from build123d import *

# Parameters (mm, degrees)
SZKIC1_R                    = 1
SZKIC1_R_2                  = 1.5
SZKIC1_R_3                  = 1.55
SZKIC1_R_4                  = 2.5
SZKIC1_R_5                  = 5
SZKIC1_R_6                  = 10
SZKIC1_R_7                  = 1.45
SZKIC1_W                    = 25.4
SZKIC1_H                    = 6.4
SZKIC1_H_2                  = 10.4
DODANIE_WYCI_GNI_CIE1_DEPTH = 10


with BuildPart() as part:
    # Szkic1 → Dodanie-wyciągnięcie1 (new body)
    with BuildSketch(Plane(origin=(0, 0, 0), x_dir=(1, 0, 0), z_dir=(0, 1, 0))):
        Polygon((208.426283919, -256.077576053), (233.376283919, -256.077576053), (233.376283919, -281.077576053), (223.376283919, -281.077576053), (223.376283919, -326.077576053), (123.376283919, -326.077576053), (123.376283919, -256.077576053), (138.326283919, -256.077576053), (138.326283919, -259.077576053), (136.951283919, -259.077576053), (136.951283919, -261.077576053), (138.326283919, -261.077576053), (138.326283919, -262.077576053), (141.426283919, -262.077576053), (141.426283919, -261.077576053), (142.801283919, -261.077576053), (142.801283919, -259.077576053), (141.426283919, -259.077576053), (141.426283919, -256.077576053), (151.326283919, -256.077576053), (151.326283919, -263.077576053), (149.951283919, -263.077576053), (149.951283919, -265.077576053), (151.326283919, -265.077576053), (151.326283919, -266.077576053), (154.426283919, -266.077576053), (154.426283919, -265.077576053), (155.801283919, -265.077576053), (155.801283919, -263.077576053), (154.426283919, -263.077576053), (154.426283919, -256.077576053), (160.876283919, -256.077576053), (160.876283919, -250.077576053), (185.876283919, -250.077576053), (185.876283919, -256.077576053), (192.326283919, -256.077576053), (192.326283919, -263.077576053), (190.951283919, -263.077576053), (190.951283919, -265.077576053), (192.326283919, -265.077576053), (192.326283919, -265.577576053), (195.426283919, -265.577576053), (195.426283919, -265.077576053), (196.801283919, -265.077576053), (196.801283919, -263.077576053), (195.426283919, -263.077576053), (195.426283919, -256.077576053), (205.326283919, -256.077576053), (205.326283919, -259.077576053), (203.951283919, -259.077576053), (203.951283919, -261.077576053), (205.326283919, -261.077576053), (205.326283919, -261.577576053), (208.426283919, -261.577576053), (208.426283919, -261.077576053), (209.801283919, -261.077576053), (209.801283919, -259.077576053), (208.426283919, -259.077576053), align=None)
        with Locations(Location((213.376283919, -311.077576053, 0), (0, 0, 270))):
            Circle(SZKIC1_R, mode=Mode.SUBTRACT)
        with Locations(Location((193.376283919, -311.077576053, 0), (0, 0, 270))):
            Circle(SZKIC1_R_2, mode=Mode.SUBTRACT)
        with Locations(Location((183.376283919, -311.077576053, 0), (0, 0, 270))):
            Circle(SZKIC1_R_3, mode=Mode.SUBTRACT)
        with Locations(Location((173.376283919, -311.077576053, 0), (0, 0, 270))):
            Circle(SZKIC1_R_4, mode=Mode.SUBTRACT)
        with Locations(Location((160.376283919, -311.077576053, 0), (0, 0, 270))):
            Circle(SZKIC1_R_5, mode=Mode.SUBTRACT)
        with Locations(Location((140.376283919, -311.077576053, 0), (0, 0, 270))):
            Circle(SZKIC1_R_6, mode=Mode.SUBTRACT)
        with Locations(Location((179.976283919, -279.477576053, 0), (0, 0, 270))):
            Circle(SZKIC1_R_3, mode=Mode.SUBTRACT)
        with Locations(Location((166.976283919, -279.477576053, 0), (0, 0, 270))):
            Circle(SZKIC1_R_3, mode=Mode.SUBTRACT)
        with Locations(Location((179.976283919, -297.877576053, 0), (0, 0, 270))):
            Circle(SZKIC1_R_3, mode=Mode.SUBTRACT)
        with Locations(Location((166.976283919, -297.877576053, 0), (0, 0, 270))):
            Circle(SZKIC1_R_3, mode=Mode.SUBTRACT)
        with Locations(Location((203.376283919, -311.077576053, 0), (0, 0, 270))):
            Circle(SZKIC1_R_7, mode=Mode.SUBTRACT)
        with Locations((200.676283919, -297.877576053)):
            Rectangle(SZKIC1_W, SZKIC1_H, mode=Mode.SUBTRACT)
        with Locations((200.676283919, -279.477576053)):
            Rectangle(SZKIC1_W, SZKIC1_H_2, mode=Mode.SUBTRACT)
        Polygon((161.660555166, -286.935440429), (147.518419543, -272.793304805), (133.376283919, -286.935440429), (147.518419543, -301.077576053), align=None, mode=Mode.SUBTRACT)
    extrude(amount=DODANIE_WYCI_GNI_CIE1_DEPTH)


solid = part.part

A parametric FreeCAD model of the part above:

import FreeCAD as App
import Part
import Sketcher
Q = App.Units.Quantity


def add_polygon(sketch, points):
    """Adds a closed chain of lines whose ends are joined by coincident constraints."""
    first, n = sketch.GeometryCount, len(points)
    for a, b in zip(points, points[1:] + points[:1]):
        sketch.addGeometry(Part.LineSegment(App.Vector(*a, 0), App.Vector(*b, 0)), False)
    for i in range(n):
        sketch.addConstraint(Sketcher.Constraint("Coincident", first + i, 2, first + (i + 1) % n, 1))

doc = App.newDocument("Part")
params = doc.addObject("Spreadsheet::Sheet", "Params")
for row, (alias, value) in enumerate([
    ("sketch1_diameter", "2 mm"),
    ("sketch1_diameter2", "3 mm"),
    ("sketch1_diameter3", "5 mm"),
    ("sketch1_diameter4", "10 mm"),
    ("sketch1_diameter5", "20 mm"),
    ("pad1_length", "10 mm"),
], start=1):
    params.set(f"A{row}", alias)
    params.set(f"B{row}", "=" + value)
    params.setAlias(f"B{row}", alias)

body = doc.addObject("PartDesign::Body", "Body")

# Sketch on XZ plane
sketch1 = body.newObject("Sketcher::SketchObject", "Sketch")
sketch1.AttachmentSupport = (doc.getObject("XZ_Plane"), [""])
sketch1.MapMode = "FlatFace"
add_polygon(sketch1, [(233.4, 256.1), (208.4, 256.1), (208.4, 259.1), (209.8, 259.1), (209.8, 261.1), (208.4, 261.1), (208.4, 261.6), (205.3, 261.6), (205.3, 261.1), (204, 261.1), (204, 259.1), (205.3, 259.1), (205.3, 256.1), (195.4, 256.1), (195.4, 263.1), (196.8, 263.1), (196.8, 265.1), (195.4, 265.1), (195.4, 265.6), (192.3, 265.6), (192.3, 265.1), (191, 265.1), (191, 263.1), (192.3, 263.1), (192.3, 256.1), (185.9, 256.1), (185.9, 250.1), (160.9, 250.1), (160.9, 256.1), (154.4, 256.1), (154.4, 263.1), (155.8, 263.1), (155.8, 265.1), (154.4, 265.1), (154.4, 266.1), (151.3, 266.1), (151.3, 265.1), (150, 265.1), (150, 263.1), (151.3, 263.1), (151.3, 256.1), (141.4, 256.1), (141.4, 259.1), (142.8, 259.1), (142.8, 261.1), (141.4, 261.1), (141.4, 262.1), (138.3, 262.1), (138.3, 261.1), (137, 261.1), (137, 259.1), (138.3, 259.1), (138.3, 256.1), (123.4, 256.1), (123.4, 326.1), (223.4, 326.1), (223.4, 281.1), (233.4, 281.1)])  # lines 0-57
sketch1.addGeometry(Part.Circle(App.Vector(213.4, 311.1, 0), App.Vector(0, 0, 1), 1), False)  # 58
sketch1.addGeometry(Part.Circle(App.Vector(203.4, 311.1, 0), App.Vector(0, 0, 1), 1.4), False)  # 59
sketch1.addGeometry(Part.Circle(App.Vector(193.4, 311.1, 0), App.Vector(0, 0, 1), 1.5), False)  # 60
sketch1.addGeometry(Part.Circle(App.Vector(183.4, 311.1, 0), App.Vector(0, 0, 1), 1.6), False)  # 61
sketch1.addGeometry(Part.Circle(App.Vector(173.4, 311.1, 0), App.Vector(0, 0, 1), 2.5), False)  # 62
add_polygon(sketch1, [(188, 301.1), (188, 294.7), (213.4, 294.7), (213.4, 301.1)])  # lines 63-66
sketch1.addGeometry(Part.Circle(App.Vector(180, 297.9, 0), App.Vector(0, 0, 1), 1.6), False)  # 67
sketch1.addGeometry(Part.Circle(App.Vector(160.4, 311.1, 0), App.Vector(0, 0, 1), 5), False)  # 68
sketch1.addGeometry(Part.Circle(App.Vector(140.4, 311.1, 0), App.Vector(0, 0, 1), 10), False)  # 69
sketch1.addGeometry(Part.Circle(App.Vector(167, 297.9, 0), App.Vector(0, 0, 1), 1.6), False)  # 70
add_polygon(sketch1, [(188, 284.7), (188, 274.3), (213.4, 274.3), (213.4, 284.7)])  # lines 71-74
sketch1.addGeometry(Part.Circle(App.Vector(180, 279.5, 0), App.Vector(0, 0, 1), 1.6), False)  # 75
add_polygon(sketch1, [(161.7, 286.9), (147.5, 301.1), (133.4, 286.9), (147.5, 272.8)])  # lines 76-79
sketch1.addGeometry(Part.Circle(App.Vector(167, 279.5, 0), App.Vector(0, 0, 1), 1.6), False)  # 80
sketch1.addConstraint(Sketcher.Constraint("Horizontal", 0))
sketch1.addConstraint(Sketcher.Constraint("Vertical", 1))
sketch1.addConstraint(Sketcher.Constraint("Horizontal", 2))
sketch1.addConstraint(Sketcher.Constraint("Vertical", 3))
sketch1.addConstraint(Sketcher.Constraint("Horizontal", 4))
sketch1.addConstraint(Sketcher.Constraint("Vertical", 5))
sketch1.addConstraint(Sketcher.Constraint("Horizontal", 6))
sketch1.addConstraint(Sketcher.Constraint("Vertical", 7))
sketch1.addConstraint(Sketcher.Constraint("Horizontal", 8))
sketch1.addConstraint(Sketcher.Constraint("Vertical", 9))
sketch1.addConstraint(Sketcher.Constraint("Horizontal", 10))
sketch1.addConstraint(Sketcher.Constraint("Vertical", 11))
sketch1.addConstraint(Sketcher.Constraint("Horizontal", 12))
sketch1.addConstraint(Sketcher.Constraint("Vertical", 13))
sketch1.addConstraint(Sketcher.Constraint("Horizontal", 14))
sketch1.addConstraint(Sketcher.Constraint("Vertical", 15))
sketch1.addConstraint(Sketcher.Constraint("Horizontal", 16))
sketch1.addConstraint(Sketcher.Constraint("Vertical", 17))
sketch1.addConstraint(Sketcher.Constraint("Horizontal", 18))
sketch1.addConstraint(Sketcher.Constraint("Vertical", 19))
sketch1.addConstraint(Sketcher.Constraint("Horizontal", 20))
sketch1.addConstraint(Sketcher.Constraint("Vertical", 21))
sketch1.addConstraint(Sketcher.Constraint("Horizontal", 22))
sketch1.addConstraint(Sketcher.Constraint("Vertical", 23))
sketch1.addConstraint(Sketcher.Constraint("Horizontal", 24))
sketch1.addConstraint(Sketcher.Constraint("Vertical", 25))
sketch1.addConstraint(Sketcher.Constraint("Horizontal", 26))
sketch1.addConstraint(Sketcher.Constraint("Vertical", 27))
sketch1.addConstraint(Sketcher.Constraint("Horizontal", 28))
sketch1.addConstraint(Sketcher.Constraint("Vertical", 29))
sketch1.addConstraint(Sketcher.Constraint("Horizontal", 30))
sketch1.addConstraint(Sketcher.Constraint("Vertical", 31))
sketch1.addConstraint(Sketcher.Constraint("Horizontal", 32))
sketch1.addConstraint(Sketcher.Constraint("Vertical", 33))
sketch1.addConstraint(Sketcher.Constraint("Horizontal", 34))
sketch1.addConstraint(Sketcher.Constraint("Vertical", 35))
sketch1.addConstraint(Sketcher.Constraint("Horizontal", 36))
sketch1.addConstraint(Sketcher.Constraint("Vertical", 37))
sketch1.addConstraint(Sketcher.Constraint("Horizontal", 38))
sketch1.addConstraint(Sketcher.Constraint("Vertical", 39))
sketch1.addConstraint(Sketcher.Constraint("Horizontal", 40))
sketch1.addConstraint(Sketcher.Constraint("Vertical", 41))
sketch1.addConstraint(Sketcher.Constraint("Horizontal", 42))
sketch1.addConstraint(Sketcher.Constraint("Vertical", 43))
sketch1.addConstraint(Sketcher.Constraint("Horizontal", 44))
sketch1.addConstraint(Sketcher.Constraint("Vertical", 45))
sketch1.addConstraint(Sketcher.Constraint("Horizontal", 46))
sketch1.addConstraint(Sketcher.Constraint("Vertical", 47))
sketch1.addConstraint(Sketcher.Constraint("Horizontal", 48))
sketch1.addConstraint(Sketcher.Constraint("Vertical", 49))
sketch1.addConstraint(Sketcher.Constraint("Horizontal", 50))
sketch1.addConstraint(Sketcher.Constraint("Vertical", 51))
sketch1.addConstraint(Sketcher.Constraint("Horizontal", 52))
sketch1.addConstraint(Sketcher.Constraint("Vertical", 53))
sketch1.addConstraint(Sketcher.Constraint("Horizontal", 54))
sketch1.addConstraint(Sketcher.Constraint("Vertical", 55))
sketch1.addConstraint(Sketcher.Constraint("Horizontal", 56))
sketch1.addConstraint(Sketcher.Constraint("Vertical", 57))
sketch1.addConstraint(Sketcher.Constraint("Vertical", 63))
sketch1.addConstraint(Sketcher.Constraint("Horizontal", 64))
sketch1.addConstraint(Sketcher.Constraint("Vertical", 65))
sketch1.addConstraint(Sketcher.Constraint("Horizontal", 66))
sketch1.addConstraint(Sketcher.Constraint("Vertical", 71))
sketch1.addConstraint(Sketcher.Constraint("Horizontal", 72))
sketch1.addConstraint(Sketcher.Constraint("Vertical", 73))
sketch1.addConstraint(Sketcher.Constraint("Horizontal", 74))
sketch1.addConstraint(Sketcher.Constraint("Equal", 61, 67))
sketch1.addConstraint(Sketcher.Constraint("Equal", 67, 70))
sketch1.addConstraint(Sketcher.Constraint("Equal", 70, 75))
sketch1.addConstraint(Sketcher.Constraint("Equal", 75, 80))
sketch1.addConstraint(Sketcher.Constraint("Perpendicular", 76, 77))
sketch1.addConstraint(Sketcher.Constraint("Perpendicular", 77, 78))
sketch1.addConstraint(Sketcher.Constraint("Perpendicular", 78, 79))
sketch1.addConstraint(Sketcher.Constraint("Horizontal", 58, 3, 59, 3))
sketch1.addConstraint(Sketcher.Constraint("Horizontal", 59, 3, 60, 3))
sketch1.addConstraint(Sketcher.Constraint("Horizontal", 60, 3, 61, 3))
sketch1.addConstraint(Sketcher.Constraint("Horizontal", 61, 3, 62, 3))
sketch1.addConstraint(Sketcher.Constraint("Horizontal", 62, 3, 68, 3))
sketch1.addConstraint(Sketcher.Constraint("Horizontal", 68, 3, 69, 3))
sketch1.addConstraint(Sketcher.Constraint("Horizontal", 67, 3, 70, 3))
sketch1.addConstraint(Sketcher.Constraint("Horizontal", 75, 3, 80, 3))
sketch1.addConstraint(Sketcher.Constraint("Horizontal", 4, 2, 7, 2))
sketch1.addConstraint(Sketcher.Constraint("Horizontal", 2, 2, 9, 2))
sketch1.addConstraint(Sketcher.Constraint("Horizontal", 0, 2, 11, 2))
sketch1.addConstraint(Sketcher.Constraint("Horizontal", 16, 2, 19, 2))
sketch1.addConstraint(Sketcher.Constraint("Horizontal", 14, 2, 21, 2))
sketch1.addConstraint(Sketcher.Constraint("Horizontal", 12, 2, 23, 2))
sketch1.addConstraint(Sketcher.Constraint("Horizontal", 24, 2, 27, 2))
sketch1.addConstraint(Sketcher.Constraint("Horizontal", 22, 2, 29, 2))
sketch1.addConstraint(Sketcher.Constraint("Horizontal", 20, 2, 31, 2))
sketch1.addConstraint(Sketcher.Constraint("Horizontal", 32, 2, 35, 2))
sketch1.addConstraint(Sketcher.Constraint("Horizontal", 30, 2, 37, 2))
sketch1.addConstraint(Sketcher.Constraint("Horizontal", 28, 2, 39, 2))
sketch1.addConstraint(Sketcher.Constraint("Horizontal", 10, 2, 41, 2))
sketch1.addConstraint(Sketcher.Constraint("Horizontal", 8, 2, 43, 2))
sketch1.addConstraint(Sketcher.Constraint("Horizontal", 44, 2, 47, 2))
sketch1.addConstraint(Sketcher.Constraint("Horizontal", 42, 2, 49, 2))
sketch1.addConstraint(Sketcher.Constraint("Horizontal", 40, 2, 51, 2))
sketch1.addConstraint(Sketcher.Constraint("Horizontal", 66, 2, 76, 2))
sketch1.addConstraint(Sketcher.Constraint("Horizontal", 77, 2, 79, 2))
sketch1.addConstraint(Sketcher.Constraint("Vertical", 67, 3, 75, 3))
sketch1.addConstraint(Sketcher.Constraint("Vertical", 70, 3, 80, 3))
sketch1.addConstraint(Sketcher.Constraint("Vertical", 1, 2, 4, 2))
sketch1.addConstraint(Sketcher.Constraint("Vertical", 7, 2, 10, 2))
sketch1.addConstraint(Sketcher.Constraint("Vertical", 13, 2, 16, 2))
sketch1.addConstraint(Sketcher.Constraint("Vertical", 19, 2, 22, 2))
sketch1.addConstraint(Sketcher.Constraint("Vertical", 29, 2, 32, 2))
sketch1.addConstraint(Sketcher.Constraint("Vertical", 35, 2, 38, 2))
sketch1.addConstraint(Sketcher.Constraint("Vertical", 41, 2, 44, 2))
sketch1.addConstraint(Sketcher.Constraint("Vertical", 47, 2, 50, 2))
sketch1.addConstraint(Sketcher.Constraint("Vertical", 58, 3, 64, 2))
sketch1.addConstraint(Sketcher.Constraint("Vertical", 66, 2, 71, 2))
sketch1.addConstraint(Sketcher.Constraint("Vertical", 65, 2, 72, 2))
sketch1.addConstraint(Sketcher.Constraint("Vertical", 76, 2, 78, 2))
sketch1.addConstraint(Sketcher.Constraint("Equal", 4, 8))
sketch1.addConstraint(Sketcher.Constraint("Equal", 10, 14))
sketch1.addConstraint(Sketcher.Constraint("Equal", 6, 18))
sketch1.addConstraint(Sketcher.Constraint("Equal", 16, 20))
sketch1.addConstraint(Sketcher.Constraint("Equal", 24, 28))
sketch1.addConstraint(Sketcher.Constraint("Equal", 22, 30))
sketch1.addConstraint(Sketcher.Constraint("Equal", 18, 34))
sketch1.addConstraint(Sketcher.Constraint("Equal", 32, 36))
sketch1.addConstraint(Sketcher.Constraint("Equal", 12, 40))
sketch1.addConstraint(Sketcher.Constraint("Equal", 38, 42))
sketch1.addConstraint(Sketcher.Constraint("Equal", 34, 46))
sketch1.addConstraint(Sketcher.Constraint("Equal", 44, 48))
sketch1.addConstraint(Sketcher.Constraint("Equal", 9, 15))
sketch1.addConstraint(Sketcher.Constraint("Equal", 7, 17))
sketch1.addConstraint(Sketcher.Constraint("Equal", 35, 45))
sketch1.addConstraint(Sketcher.Constraint("Equal", 26, 57))
sketch1.addConstraint(Sketcher.Constraint("Diameter", 58, Q("2 mm")))
sketch1.addConstraint(Sketcher.Constraint("Diameter", 60, Q("3 mm")))
sketch1.addConstraint(Sketcher.Constraint("Diameter", 62, Q("5 mm")))
sketch1.addConstraint(Sketcher.Constraint("Diameter", 68, Q("10 mm")))
sketch1.addConstraint(Sketcher.Constraint("Diameter", 69, Q("20 mm")))
sketch1.addConstraint(Sketcher.Constraint("Diameter", 59, Q("2.9 mm")))
sketch1.addConstraint(Sketcher.Constraint("Diameter", 61, Q("3.1 mm")))
sketch1.addConstraint(Sketcher.Constraint("DistanceX", 26, 2, 26, 1, Q("25 mm")))
sketch1.addConstraint(Sketcher.Constraint("DistanceX", 54, 1, 54, 2, Q("100 mm")))
sketch1.addConstraint(Sketcher.Constraint("DistanceX", 56, 1, 56, 2, Q("10 mm")))
sketch1.addConstraint(Sketcher.Constraint("DistanceY", 1, 1, 1, 2, Q("3 mm")))
sketch1.addConstraint(Sketcher.Constraint("DistanceY", 3, 1, 3, 2, Q("2 mm")))
sketch1.addConstraint(Sketcher.Constraint("DistanceY", 13, 1, 13, 2, Q("7 mm")))
sketch1.addConstraint(Sketcher.Constraint("DistanceY", 25, 2, 25, 1, Q("6 mm")))
sketch1.addConstraint(Sketcher.Constraint("DistanceY", 33, 1, 33, 2, Q("1 mm")))
sketch1.addConstraint(Sketcher.Constraint("DistanceY", 53, 1, 53, 2, Q("70 mm")))
sketch1.addConstraint(Sketcher.Constraint("Distance", 76, Q("20 mm")))
sketch1.addConstraint(Sketcher.Constraint("DistanceX", 6, 2, 6, 1, Q("3.1 mm")))
sketch1.addConstraint(Sketcher.Constraint("DistanceX", 12, 2, 12, 1, Q("9.9 mm")))
sketch1.addConstraint(Sketcher.Constraint("DistanceX", 64, 1, 64, 2, Q("25.4 mm")))
sketch1.addConstraint(Sketcher.Constraint("DistanceY", 5, 1, 5, 2, Q("0.5 mm")))
sketch1.addConstraint(Sketcher.Constraint("DistanceY", 63, 2, 63, 1, Q("6.4 mm")))
sketch1.addConstraint(Sketcher.Constraint("DistanceY", 71, 2, 71, 1, Q("10.4 mm")))
sketch1.addConstraint(Sketcher.Constraint("DistanceX", 0, 2, 0, 1, Q("24.95 mm")))
sketch1.addConstraint(Sketcher.Constraint("DistanceX", 24, 2, 24, 1, Q("6.45 mm")))
sketch1.addConstraint(Sketcher.Constraint("DistanceX", 2, 1, 2, 2, Q("1.375 mm")))
sketch1.addConstraint(Sketcher.Constraint("DistanceX", -1, 1, 76, 2, Q("147.51842 mm")))
sketch1.addConstraint(Sketcher.Constraint("DistanceY", -1, 1, 77, 2, Q("286.93544 mm")))
sketch1.addConstraint(Sketcher.Constraint("DistanceX", -1, 1, 58, 3, Q("213.376284 mm")))
sketch1.addConstraint(Sketcher.Constraint("DistanceY", -1, 1, 58, 3, Q("311.077576 mm")))
sketch1.addConstraint(Sketcher.Constraint("DistanceX", -1, 1, 59, 3, Q("203.376284 mm")))
sketch1.addConstraint(Sketcher.Constraint("DistanceX", -1, 1, 60, 3, Q("193.376284 mm")))
sketch1.addConstraint(Sketcher.Constraint("DistanceX", -1, 1, 61, 3, Q("183.376284 mm")))
sketch1.addConstraint(Sketcher.Constraint("DistanceX", -1, 1, 62, 3, Q("173.376284 mm")))
sketch1.addConstraint(Sketcher.Constraint("DistanceX", -1, 1, 67, 3, Q("179.976284 mm")))
sketch1.addConstraint(Sketcher.Constraint("DistanceY", -1, 1, 67, 3, Q("297.877576 mm")))
sketch1.addConstraint(Sketcher.Constraint("DistanceX", -1, 1, 68, 3, Q("160.376284 mm")))
sketch1.addConstraint(Sketcher.Constraint("DistanceX", -1, 1, 69, 3, Q("140.376284 mm")))
sketch1.addConstraint(Sketcher.Constraint("DistanceX", -1, 1, 70, 3, Q("166.976284 mm")))
sketch1.addConstraint(Sketcher.Constraint("DistanceY", -1, 1, 75, 3, Q("279.477576 mm")))
sketch1.addConstraint(Sketcher.Constraint("DistanceX", -1, 1, 0, 2, Q("208.426284 mm")))
sketch1.addConstraint(Sketcher.Constraint("DistanceY", -1, 1, 0, 2, Q("256.077576 mm")))
sketch1.addConstraint(Sketcher.Constraint("DistanceY", -1, 1, 71, 2, Q("274.277576 mm")))
sketch1.setExpression("Constraints[200]", "Params.sketch1_diameter")
sketch1.setExpression("Constraints[201]", "Params.sketch1_diameter2")
sketch1.setExpression("Constraints[202]", "Params.sketch1_diameter3")
sketch1.setExpression("Constraints[203]", "Params.sketch1_diameter4")
sketch1.setExpression("Constraints[204]", "Params.sketch1_diameter5")
pad1 = body.newObject("PartDesign::Pad", "Pad")
pad1.Profile = sketch1
pad1.setExpression("Length", "Params.pad1_length")
pad1.Reversed = True

doc.recompute()
